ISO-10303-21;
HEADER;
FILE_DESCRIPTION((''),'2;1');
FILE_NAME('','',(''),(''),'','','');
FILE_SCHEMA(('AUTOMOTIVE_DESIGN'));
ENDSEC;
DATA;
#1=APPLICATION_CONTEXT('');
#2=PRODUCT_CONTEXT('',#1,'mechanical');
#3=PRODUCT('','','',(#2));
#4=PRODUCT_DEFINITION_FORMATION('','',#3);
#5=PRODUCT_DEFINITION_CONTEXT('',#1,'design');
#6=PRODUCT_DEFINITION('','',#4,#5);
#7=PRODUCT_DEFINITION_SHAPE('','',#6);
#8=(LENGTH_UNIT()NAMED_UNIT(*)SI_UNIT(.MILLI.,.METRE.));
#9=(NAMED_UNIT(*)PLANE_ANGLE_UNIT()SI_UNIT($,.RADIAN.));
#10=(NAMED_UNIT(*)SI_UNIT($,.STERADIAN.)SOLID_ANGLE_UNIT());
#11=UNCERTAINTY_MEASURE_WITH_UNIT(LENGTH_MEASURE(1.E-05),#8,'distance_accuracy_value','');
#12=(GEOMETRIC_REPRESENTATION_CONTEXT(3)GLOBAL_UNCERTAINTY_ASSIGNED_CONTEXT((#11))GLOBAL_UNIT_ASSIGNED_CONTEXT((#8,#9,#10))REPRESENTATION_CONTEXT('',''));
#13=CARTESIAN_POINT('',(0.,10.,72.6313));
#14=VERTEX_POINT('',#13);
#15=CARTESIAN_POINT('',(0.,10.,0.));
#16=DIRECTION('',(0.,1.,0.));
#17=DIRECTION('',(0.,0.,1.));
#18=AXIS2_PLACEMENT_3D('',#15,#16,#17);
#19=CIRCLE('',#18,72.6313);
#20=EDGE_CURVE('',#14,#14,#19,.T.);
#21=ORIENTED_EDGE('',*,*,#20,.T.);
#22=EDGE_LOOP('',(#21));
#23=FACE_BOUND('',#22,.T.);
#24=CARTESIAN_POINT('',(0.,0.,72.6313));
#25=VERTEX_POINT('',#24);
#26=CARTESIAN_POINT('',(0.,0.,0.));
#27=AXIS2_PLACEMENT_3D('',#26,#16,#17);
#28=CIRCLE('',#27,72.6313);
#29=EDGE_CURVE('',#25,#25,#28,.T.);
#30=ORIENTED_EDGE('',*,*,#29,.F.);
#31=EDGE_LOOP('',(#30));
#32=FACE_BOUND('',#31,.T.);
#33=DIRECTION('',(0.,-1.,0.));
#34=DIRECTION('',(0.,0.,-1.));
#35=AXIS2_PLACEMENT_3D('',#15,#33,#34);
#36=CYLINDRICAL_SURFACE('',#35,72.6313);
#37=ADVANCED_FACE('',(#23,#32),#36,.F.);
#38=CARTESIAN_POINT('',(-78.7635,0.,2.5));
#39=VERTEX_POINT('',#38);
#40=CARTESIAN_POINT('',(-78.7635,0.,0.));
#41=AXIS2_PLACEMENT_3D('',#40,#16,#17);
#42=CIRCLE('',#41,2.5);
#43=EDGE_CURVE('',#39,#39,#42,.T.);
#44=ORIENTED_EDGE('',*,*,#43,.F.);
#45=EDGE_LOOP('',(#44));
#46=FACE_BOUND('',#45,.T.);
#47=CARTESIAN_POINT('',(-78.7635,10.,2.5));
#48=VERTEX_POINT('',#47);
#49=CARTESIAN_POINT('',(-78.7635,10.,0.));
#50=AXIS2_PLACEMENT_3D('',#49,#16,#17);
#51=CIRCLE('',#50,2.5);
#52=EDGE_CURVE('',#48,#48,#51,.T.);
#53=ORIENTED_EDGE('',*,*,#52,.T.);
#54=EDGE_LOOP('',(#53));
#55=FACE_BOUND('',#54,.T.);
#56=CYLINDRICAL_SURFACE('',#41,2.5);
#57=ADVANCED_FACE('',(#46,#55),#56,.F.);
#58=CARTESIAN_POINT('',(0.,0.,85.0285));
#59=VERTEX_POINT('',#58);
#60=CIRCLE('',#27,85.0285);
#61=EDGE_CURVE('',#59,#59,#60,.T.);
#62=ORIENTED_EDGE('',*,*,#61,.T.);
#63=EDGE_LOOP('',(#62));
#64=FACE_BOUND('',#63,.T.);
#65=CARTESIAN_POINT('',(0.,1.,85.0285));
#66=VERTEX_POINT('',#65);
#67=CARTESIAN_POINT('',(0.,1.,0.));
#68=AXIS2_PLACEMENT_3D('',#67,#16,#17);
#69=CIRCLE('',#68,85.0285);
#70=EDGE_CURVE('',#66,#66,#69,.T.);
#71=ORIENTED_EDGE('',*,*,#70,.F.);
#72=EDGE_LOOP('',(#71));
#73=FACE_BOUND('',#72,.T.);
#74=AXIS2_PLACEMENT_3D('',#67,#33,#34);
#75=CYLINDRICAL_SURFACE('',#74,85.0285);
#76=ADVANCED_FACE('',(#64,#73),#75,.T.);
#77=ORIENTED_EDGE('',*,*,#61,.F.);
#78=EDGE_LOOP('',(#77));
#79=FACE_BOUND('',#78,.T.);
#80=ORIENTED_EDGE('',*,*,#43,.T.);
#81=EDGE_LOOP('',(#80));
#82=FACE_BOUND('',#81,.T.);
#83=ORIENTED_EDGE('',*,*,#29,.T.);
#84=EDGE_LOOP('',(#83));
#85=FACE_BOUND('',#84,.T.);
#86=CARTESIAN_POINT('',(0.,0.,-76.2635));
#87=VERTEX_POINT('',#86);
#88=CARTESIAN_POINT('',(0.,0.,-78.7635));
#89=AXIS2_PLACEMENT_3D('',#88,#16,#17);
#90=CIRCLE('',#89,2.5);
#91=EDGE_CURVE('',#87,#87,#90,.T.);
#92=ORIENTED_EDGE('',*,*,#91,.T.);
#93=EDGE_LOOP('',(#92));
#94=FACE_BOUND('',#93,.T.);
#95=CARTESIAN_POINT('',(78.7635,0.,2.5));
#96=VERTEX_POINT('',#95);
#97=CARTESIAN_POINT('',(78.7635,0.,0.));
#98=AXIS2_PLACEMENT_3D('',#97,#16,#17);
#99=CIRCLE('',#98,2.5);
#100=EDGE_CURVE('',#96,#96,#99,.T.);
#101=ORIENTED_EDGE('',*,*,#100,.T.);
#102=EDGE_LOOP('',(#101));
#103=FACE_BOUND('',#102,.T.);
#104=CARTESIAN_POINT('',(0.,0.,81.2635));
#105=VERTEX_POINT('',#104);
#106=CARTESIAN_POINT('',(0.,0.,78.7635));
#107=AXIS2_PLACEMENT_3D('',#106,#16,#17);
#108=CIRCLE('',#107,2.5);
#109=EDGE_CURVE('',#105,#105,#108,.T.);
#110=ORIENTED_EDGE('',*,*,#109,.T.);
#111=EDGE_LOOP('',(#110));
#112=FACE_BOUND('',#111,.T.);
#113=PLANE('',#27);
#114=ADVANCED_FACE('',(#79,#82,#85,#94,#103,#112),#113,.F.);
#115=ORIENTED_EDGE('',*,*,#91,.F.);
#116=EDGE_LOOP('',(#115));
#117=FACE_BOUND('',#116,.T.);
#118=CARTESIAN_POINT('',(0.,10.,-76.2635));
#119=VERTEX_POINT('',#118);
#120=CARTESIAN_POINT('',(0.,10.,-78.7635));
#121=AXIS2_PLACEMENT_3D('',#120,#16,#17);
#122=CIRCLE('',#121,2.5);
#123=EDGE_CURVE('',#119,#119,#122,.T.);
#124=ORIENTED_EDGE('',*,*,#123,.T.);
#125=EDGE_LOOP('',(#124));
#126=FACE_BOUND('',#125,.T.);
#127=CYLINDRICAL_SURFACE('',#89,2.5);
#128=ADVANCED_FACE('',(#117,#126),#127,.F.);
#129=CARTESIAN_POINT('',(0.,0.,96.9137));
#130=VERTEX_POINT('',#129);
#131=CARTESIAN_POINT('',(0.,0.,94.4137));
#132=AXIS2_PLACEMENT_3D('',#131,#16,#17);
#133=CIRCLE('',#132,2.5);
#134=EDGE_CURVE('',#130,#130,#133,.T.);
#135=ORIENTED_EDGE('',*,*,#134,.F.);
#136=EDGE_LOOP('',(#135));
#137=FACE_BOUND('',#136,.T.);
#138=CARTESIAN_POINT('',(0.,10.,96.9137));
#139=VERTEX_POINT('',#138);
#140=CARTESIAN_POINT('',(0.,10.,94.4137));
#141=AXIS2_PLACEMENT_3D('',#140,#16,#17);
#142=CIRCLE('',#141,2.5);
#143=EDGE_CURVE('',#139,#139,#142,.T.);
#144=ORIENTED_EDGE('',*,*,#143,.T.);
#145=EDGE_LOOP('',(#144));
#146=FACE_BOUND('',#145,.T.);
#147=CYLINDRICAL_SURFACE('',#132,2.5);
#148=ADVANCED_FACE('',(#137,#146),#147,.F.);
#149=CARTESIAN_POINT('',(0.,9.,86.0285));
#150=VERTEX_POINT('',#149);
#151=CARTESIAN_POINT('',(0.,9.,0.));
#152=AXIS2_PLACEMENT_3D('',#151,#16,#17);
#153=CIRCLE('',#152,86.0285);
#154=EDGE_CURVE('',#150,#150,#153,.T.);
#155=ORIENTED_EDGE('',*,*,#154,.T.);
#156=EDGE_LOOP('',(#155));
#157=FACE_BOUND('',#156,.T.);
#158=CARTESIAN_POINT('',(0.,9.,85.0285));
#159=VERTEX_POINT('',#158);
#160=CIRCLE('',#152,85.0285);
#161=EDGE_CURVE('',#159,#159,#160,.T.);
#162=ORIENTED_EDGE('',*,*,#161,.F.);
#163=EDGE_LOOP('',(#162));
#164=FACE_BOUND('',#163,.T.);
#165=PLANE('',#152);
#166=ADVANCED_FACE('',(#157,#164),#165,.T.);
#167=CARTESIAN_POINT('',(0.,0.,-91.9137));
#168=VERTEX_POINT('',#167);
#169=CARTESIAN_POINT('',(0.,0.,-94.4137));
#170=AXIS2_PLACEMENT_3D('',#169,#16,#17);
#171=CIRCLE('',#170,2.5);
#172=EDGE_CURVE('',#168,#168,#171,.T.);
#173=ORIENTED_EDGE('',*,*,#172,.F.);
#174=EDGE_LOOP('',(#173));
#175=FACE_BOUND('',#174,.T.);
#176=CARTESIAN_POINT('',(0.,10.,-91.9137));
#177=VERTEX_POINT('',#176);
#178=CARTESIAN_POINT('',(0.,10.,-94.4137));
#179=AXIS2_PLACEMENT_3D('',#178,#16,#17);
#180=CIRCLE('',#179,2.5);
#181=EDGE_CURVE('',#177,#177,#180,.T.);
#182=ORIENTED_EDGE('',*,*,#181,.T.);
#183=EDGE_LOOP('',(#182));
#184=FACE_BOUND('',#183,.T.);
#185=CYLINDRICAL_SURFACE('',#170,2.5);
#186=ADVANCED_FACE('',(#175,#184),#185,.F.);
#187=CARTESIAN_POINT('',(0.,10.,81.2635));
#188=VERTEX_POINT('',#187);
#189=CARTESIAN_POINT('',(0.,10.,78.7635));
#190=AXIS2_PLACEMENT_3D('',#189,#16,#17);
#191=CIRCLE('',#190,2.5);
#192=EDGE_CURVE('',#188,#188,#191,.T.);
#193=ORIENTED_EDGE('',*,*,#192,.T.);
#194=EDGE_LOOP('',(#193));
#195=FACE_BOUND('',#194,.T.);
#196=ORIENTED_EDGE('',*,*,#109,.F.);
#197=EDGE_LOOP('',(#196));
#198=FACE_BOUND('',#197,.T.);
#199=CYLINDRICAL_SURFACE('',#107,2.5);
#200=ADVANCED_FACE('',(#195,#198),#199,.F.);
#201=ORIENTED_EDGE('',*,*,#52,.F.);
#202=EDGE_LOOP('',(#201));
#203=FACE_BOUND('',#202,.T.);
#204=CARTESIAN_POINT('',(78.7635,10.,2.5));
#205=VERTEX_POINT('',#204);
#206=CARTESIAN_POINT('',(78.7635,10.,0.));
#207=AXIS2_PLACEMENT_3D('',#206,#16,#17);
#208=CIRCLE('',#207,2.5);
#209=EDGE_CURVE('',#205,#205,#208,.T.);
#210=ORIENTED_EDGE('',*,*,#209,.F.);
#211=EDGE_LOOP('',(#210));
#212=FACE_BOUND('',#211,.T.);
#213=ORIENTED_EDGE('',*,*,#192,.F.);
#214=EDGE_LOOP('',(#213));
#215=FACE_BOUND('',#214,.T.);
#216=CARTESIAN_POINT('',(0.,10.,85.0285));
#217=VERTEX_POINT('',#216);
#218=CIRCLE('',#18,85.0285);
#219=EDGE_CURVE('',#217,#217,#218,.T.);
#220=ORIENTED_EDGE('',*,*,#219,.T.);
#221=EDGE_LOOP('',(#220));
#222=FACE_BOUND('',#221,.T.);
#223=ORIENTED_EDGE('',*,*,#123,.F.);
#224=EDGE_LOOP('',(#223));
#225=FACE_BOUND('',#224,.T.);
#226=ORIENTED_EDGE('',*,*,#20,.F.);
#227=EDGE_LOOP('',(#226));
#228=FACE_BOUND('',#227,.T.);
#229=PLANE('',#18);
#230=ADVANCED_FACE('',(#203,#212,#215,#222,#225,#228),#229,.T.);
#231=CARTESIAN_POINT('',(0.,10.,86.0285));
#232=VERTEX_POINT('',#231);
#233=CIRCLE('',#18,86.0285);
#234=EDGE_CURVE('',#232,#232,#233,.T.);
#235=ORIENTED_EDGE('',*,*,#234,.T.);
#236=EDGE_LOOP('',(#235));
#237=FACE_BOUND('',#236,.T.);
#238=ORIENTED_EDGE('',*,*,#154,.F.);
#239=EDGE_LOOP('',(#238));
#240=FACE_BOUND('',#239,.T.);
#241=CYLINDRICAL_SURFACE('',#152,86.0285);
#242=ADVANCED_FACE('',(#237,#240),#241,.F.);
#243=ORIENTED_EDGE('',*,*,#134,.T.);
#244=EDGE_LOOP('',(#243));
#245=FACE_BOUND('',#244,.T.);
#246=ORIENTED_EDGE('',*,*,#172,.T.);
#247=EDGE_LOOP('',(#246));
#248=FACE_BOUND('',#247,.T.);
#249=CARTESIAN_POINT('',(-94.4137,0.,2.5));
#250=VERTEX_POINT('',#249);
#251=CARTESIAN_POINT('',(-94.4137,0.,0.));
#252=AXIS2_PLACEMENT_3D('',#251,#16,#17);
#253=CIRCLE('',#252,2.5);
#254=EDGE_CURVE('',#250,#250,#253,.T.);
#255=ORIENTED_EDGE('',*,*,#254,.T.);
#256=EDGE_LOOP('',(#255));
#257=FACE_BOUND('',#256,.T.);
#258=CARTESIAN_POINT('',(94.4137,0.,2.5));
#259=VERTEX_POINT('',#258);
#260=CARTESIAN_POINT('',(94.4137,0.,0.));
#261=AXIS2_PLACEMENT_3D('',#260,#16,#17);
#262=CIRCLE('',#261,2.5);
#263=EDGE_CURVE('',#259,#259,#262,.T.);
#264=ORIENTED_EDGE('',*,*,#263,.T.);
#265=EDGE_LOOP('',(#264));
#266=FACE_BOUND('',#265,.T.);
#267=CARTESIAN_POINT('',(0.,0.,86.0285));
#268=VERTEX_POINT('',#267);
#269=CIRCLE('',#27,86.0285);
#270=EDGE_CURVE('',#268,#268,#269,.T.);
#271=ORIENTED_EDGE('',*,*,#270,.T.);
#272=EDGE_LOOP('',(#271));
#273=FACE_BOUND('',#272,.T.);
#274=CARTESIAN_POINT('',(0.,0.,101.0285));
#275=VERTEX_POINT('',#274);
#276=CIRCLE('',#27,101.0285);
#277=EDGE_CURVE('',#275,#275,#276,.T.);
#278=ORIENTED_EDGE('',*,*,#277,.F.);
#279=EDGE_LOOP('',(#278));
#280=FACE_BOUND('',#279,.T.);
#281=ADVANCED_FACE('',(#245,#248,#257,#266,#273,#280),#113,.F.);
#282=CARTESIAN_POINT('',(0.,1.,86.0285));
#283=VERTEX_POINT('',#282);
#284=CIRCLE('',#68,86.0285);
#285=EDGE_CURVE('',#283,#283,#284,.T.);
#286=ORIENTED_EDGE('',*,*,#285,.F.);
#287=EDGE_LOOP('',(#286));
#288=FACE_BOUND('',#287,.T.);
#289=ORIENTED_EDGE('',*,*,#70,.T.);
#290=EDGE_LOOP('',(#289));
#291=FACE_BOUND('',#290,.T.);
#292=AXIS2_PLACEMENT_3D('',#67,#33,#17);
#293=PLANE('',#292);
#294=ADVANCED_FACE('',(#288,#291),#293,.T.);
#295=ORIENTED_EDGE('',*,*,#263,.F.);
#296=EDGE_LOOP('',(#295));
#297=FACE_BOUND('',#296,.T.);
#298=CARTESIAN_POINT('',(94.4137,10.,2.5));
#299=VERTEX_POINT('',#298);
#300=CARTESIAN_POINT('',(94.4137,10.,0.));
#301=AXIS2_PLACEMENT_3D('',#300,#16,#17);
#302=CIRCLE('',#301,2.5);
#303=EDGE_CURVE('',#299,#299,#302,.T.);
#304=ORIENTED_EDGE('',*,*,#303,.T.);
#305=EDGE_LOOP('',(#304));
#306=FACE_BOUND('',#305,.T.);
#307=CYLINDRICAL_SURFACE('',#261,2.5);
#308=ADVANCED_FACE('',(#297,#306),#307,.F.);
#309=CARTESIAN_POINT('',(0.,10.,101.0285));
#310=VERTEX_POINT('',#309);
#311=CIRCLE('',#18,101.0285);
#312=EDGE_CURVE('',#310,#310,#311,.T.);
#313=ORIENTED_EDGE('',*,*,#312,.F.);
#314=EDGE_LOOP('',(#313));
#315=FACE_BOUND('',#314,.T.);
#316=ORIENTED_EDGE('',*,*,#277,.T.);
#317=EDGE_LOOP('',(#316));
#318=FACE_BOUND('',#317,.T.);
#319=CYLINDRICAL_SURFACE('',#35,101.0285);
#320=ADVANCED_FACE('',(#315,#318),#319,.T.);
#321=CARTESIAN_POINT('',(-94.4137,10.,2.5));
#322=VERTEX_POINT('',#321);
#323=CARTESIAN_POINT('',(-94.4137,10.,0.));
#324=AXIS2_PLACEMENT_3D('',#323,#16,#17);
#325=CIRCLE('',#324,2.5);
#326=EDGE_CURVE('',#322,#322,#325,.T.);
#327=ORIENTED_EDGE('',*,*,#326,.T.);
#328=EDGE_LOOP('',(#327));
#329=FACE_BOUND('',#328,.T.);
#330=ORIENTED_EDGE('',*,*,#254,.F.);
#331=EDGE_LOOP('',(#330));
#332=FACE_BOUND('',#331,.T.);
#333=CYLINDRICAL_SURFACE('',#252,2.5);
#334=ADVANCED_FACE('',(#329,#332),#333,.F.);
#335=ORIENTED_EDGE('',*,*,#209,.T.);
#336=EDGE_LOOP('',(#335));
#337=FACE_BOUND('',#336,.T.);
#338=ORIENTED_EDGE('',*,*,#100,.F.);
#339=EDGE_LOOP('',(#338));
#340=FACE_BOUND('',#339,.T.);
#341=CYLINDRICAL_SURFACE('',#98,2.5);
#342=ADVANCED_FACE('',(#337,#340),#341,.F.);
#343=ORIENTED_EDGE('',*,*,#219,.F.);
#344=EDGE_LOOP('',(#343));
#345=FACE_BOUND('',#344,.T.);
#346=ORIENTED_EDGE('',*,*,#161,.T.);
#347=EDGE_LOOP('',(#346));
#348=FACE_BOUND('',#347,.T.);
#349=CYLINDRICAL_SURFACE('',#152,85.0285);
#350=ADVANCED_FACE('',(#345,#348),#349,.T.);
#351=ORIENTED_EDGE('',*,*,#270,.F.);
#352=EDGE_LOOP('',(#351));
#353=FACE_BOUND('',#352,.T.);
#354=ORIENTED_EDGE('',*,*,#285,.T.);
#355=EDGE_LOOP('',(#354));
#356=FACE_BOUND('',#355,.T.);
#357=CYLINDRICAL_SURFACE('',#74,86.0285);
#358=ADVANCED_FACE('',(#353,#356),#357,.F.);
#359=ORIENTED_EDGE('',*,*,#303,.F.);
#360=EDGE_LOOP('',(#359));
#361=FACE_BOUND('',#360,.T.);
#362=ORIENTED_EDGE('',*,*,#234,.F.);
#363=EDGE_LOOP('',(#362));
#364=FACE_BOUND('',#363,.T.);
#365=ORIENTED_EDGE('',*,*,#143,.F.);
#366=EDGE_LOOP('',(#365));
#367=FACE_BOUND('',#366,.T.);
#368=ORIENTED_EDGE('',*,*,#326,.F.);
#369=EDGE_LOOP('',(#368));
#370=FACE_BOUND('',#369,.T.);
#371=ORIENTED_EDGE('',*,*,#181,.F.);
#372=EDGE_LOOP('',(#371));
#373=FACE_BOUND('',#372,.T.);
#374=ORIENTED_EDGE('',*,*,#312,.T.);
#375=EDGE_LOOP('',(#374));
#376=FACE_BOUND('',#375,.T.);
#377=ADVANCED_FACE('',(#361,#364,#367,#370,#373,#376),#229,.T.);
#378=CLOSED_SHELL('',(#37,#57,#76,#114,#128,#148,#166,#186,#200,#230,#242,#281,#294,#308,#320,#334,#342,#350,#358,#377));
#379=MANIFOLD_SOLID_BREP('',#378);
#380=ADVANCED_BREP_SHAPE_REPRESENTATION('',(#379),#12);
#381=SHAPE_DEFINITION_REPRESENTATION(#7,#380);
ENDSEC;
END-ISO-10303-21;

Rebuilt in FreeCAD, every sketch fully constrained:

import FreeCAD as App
import Part
import Sketcher

V = App.Vector
Q = App.Units.Quantity

doc = App.newDocument("Part")
body = doc.addObject("PartDesign::Body", "Body")

# Sketch on XZ plane
sketch1 = body.newObject("Sketcher::SketchObject", "Sketch")
sketch1.AttachmentSupport = (doc.getObject("XZ_Plane"), [""])
sketch1.MapMode = "FlatFace"
sketch1.addGeometry([
    Part.Circle(V(0, 0, 0), V(0, 0, 1), 101),
    Part.Circle(V(0, 0, 0), V(0, 0, 1), 73),
], False)
sketch1.addConstraint([
    Sketcher.Constraint("Coincident", 0, 3, -1, 1),
    Sketcher.Constraint("Coincident", 1, 3, -1, 1),
    Sketcher.Constraint("Diameter", 0, Q("202.057 mm")),
    Sketcher.Constraint("Diameter", 1, Q("145.2626 mm")),
])
pad1 = body.newObject("PartDesign::Pad", "Pad")
pad1.Profile = sketch1
pad1.Length = 10
pad1.Reversed = True

# Sketch on XZ plane
sketch2 = body.newObject("Sketcher::SketchObject", "Sketch001")
sketch2.AttachmentSupport = (doc.getObject("XZ_Plane"), [""])
sketch2.MapMode = "FlatFace"
sketch2.AttachmentOffset = App.Placement(V(0, 0, -10), App.Rotation())
sketch2.addGeometry([
    Part.Circle(V(-94.4, 0, 0), V(0, 0, 1), 2.5),  # 0
    Part.Circle(V(-78.8, 0, 0), V(0, 0, 1), 2.5),  # 1
    Part.Circle(V(0, -78.8, 0), V(0, 0, 1), 2.5),  # 2
    Part.Circle(V(0, -94.4, 0), V(0, 0, 1), 2.5),  # 3
    Part.Circle(V(78.8, 0, 0), V(0, 0, 1), 2.5),  # 4
    Part.Circle(V(94.4, 0, 0), V(0, 0, 1), 2.5),  # 5
    Part.Circle(V(0, 78.8, 0), V(0, 0, 1), 2.5),  # 6
    Part.Circle(V(0, 94.4, 0), V(0, 0, 1), 2.5),  # 7
], False)
sketch2.addConstraint([
    Sketcher.Constraint("Equal", 0, 1),
    Sketcher.Constraint("Equal", 1, 2),
    Sketcher.Constraint("Equal", 2, 3),
    Sketcher.Constraint("Equal", 3, 4),
    Sketcher.Constraint("Equal", 4, 5),
    Sketcher.Constraint("Equal", 5, 6),
    Sketcher.Constraint("Equal", 6, 7),
    Sketcher.Constraint("Symmetric", 1, 3, 4, 3, -1, 1),
    Sketcher.Constraint("Symmetric", 0, 3, 5, 3, -1, 1),
    Sketcher.Constraint("Symmetric", 2, 3, 6, 3, -1, 1),
    Sketcher.Constraint("Symmetric", 3, 3, 7, 3, -1, 1),
    Sketcher.Constraint("PointOnObject", 0, 3, -1),
    Sketcher.Constraint("PointOnObject", 1, 3, -1),
    Sketcher.Constraint("PointOnObject", 2, 3, -2),
    Sketcher.Constraint("PointOnObject", 3, 3, -2),
    Sketcher.Constraint("Diameter", 0, Q("5 mm")),
    Sketcher.Constraint("DistanceX", 1, 3, 4, 3, Q("157.527 mm")),
    Sketcher.Constraint("DistanceY", 2, 3, 6, 3, Q("157.527 mm")),
    Sketcher.Constraint("DistanceX", 0, 3, -1, 1, Q("94.4137 mm")),
    Sketcher.Constraint("DistanceY", 3, 3, -1, 1, Q("94.4137 mm")),
])
pocket1 = body.newObject("PartDesign::Pocket", "Pocket")
pocket1.Profile = sketch2
pocket1.Type = "ThroughAll"
pocket1.Reversed = True

# Sketch on XZ plane
sketch3 = body.newObject("Sketcher::SketchObject", "Sketch002")
sketch3.AttachmentSupport = (doc.getObject("XZ_Plane"), [""])
sketch3.MapMode = "FlatFace"
sketch3.AttachmentOffset = App.Placement(V(0, 0, -10), App.Rotation())
sketch3.addGeometry([
    Part.Circle(V(0, 0, 0), V(0, 0, 1), 86),
    Part.Circle(V(0, 0, 0), V(0, 0, 1), 85),
], False)
sketch3.addConstraint([
    Sketcher.Constraint("Coincident", 0, 3, -1, 1),
    Sketcher.Constraint("Coincident", 1, 3, -1, 1),
    Sketcher.Constraint("Diameter", 0, Q("172.057 mm")),
    Sketcher.Constraint("Diameter", 1, Q("170.057 mm")),
])
pocket2 = body.newObject("PartDesign::Pocket", "Pocket001")
pocket2.Profile = sketch3
pocket2.Length = 1
pocket2.Reversed = True
doc.recompute()

datumplane = body.newObject("PartDesign::Plane", "DatumPlane")
datumplane.AttachmentSupport = (doc.getObject("XZ_Plane"), [""])
datumplane.MapMode = "FlatFace"
datumplane.AttachmentOffset = App.Placement(V(0, 0, -5), App.Rotation())
mirrored = body.newObject("PartDesign::Mirrored", "Mirrored")
mirrored.Originals = [pocket2]
mirrored.MirrorPlane = (datumplane, [""])
body.Tip = mirrored

doc.recompute()
